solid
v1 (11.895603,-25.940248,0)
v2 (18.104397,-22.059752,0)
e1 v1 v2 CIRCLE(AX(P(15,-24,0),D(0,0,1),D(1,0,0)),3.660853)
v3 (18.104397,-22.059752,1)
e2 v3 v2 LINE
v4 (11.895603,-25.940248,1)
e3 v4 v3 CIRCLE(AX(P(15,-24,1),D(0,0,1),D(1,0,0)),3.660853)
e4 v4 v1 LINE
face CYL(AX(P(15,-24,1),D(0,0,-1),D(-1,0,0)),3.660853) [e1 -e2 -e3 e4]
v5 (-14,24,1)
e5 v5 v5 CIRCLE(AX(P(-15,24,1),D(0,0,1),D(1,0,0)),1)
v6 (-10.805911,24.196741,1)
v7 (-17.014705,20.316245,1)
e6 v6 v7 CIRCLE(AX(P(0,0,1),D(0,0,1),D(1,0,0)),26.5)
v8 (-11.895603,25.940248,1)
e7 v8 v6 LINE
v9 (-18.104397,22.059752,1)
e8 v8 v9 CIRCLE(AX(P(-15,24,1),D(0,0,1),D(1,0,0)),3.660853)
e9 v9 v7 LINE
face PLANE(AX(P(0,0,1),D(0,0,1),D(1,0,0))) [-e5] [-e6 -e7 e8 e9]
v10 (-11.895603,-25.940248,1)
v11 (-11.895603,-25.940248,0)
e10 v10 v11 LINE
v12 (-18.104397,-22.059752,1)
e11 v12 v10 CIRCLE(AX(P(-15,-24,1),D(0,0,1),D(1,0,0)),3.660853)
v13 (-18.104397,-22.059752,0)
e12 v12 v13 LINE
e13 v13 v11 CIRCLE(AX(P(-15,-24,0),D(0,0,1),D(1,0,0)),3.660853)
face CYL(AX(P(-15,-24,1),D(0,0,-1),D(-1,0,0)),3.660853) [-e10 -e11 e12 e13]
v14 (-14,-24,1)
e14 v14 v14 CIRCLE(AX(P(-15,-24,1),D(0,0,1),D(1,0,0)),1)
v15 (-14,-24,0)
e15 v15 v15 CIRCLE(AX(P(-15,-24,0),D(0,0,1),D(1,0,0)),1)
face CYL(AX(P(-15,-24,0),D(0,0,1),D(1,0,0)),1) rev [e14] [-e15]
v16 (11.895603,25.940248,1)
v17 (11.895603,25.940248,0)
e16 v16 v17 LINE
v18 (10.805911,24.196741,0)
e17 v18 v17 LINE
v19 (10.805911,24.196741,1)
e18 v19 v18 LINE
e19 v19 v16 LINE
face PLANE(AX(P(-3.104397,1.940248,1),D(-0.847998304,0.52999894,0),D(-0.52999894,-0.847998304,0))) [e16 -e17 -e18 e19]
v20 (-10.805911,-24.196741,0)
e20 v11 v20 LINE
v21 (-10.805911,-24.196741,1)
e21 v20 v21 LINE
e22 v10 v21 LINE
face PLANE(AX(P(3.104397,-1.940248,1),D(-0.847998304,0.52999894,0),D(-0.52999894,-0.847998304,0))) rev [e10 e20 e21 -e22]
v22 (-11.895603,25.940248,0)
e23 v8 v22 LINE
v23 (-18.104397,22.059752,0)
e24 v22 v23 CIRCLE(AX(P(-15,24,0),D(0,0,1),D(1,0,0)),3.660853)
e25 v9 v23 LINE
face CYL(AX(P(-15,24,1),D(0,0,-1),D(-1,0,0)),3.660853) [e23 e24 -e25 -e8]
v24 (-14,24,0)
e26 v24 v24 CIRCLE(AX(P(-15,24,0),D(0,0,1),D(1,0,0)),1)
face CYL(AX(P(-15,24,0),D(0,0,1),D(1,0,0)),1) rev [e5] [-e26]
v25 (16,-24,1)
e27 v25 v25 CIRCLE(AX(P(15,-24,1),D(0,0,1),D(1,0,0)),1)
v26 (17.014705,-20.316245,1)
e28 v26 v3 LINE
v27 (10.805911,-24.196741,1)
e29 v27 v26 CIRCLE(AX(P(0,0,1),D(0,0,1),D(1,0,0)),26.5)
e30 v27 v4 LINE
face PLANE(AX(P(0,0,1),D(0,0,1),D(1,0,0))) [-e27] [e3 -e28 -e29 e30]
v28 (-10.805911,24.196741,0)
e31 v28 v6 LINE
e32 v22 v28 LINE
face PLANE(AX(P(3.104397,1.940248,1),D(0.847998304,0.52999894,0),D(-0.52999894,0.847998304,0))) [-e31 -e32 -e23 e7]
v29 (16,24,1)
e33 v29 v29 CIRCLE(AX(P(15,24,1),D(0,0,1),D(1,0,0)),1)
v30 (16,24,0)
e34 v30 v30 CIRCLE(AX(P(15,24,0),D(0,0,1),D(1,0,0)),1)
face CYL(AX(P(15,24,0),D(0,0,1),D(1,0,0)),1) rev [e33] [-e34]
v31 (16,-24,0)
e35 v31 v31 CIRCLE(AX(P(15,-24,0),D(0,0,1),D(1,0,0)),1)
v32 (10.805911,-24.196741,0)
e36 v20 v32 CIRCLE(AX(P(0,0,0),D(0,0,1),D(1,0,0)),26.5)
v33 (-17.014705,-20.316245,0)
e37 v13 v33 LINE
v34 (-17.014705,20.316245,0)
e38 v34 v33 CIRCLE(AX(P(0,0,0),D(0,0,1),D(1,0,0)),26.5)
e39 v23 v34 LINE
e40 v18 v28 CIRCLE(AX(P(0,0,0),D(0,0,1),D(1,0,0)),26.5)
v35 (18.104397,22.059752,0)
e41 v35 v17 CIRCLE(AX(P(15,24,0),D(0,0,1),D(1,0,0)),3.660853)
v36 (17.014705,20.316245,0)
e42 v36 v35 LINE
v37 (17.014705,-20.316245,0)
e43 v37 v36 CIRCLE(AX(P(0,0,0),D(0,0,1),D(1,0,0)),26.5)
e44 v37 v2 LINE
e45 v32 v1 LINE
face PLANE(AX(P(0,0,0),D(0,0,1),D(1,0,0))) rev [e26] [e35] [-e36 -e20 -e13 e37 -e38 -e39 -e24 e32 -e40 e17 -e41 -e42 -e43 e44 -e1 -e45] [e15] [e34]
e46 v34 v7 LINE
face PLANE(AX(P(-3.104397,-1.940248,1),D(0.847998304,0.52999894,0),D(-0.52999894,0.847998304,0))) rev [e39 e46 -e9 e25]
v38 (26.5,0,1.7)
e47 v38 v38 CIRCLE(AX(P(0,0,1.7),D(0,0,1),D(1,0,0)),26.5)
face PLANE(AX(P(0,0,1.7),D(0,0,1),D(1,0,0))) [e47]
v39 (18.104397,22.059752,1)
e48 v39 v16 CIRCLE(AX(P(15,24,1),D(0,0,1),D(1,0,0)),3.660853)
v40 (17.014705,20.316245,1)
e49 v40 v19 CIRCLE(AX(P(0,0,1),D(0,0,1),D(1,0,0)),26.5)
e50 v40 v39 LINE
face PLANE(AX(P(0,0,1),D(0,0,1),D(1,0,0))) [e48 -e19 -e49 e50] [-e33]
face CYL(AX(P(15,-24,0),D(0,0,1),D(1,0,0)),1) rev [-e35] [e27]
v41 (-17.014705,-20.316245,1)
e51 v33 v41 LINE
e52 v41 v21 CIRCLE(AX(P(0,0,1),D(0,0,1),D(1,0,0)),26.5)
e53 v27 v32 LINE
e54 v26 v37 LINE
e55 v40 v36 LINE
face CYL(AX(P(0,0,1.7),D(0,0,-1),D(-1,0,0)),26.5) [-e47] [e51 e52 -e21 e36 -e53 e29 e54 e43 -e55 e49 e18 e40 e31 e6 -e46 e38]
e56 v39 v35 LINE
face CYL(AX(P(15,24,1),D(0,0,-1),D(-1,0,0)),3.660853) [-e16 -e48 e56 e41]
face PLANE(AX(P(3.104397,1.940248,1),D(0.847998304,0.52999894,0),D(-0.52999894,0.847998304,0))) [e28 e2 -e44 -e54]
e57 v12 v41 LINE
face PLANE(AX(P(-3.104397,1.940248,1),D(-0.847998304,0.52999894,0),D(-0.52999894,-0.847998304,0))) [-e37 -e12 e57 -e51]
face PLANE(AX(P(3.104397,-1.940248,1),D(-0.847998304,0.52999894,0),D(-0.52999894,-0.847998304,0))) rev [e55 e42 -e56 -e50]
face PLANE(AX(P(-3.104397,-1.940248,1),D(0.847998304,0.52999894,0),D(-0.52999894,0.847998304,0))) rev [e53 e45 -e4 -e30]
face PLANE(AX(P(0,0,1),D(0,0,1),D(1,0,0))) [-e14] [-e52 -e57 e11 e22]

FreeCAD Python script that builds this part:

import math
import FreeCAD as App
import Part
import Sketcher

V = App.Vector

doc = App.newDocument("Part")
body = doc.addObject("PartDesign::Body", "Body")

# Sketch on XY plane
sketch1 = body.newObject("Sketcher::SketchObject", "Sketch")
sketch1.AttachmentSupport = (doc.getObject("XY_Plane"), [""])
sketch1.MapMode = "FlatFace"
sketch1.addGeometry(Part.Circle(V(0, 0, 0), V(0, 0, 1), 26), False)
sketch1.addConstraint([
    Sketcher.Constraint("Coincident", 0, 3, -1, 1),
    Sketcher.Constraint("Diameter", 0, 53.0),
])
pad1 = body.newObject("PartDesign::Pad", "Pad")
pad1.Profile = sketch1
pad1.Length = 1.7

# Sketch on XY plane
sketch2 = body.newObject("Sketcher::SketchObject", "Sketch001")
sketch2.AttachmentSupport = (doc.getObject("XY_Plane"), [""])
sketch2.MapMode = "FlatFace"
sketch2.addGeometry([
    Part.LineSegment(V(0, 6.9, 0), V(-11.9, 25.9, 0)),  # 0
    Part.ArcOfCircle(Part.Circle(V(-15, 24, 0), V(0, 0, 1), 3.7), math.radians(32), math.radians(212)),  # 1
    Part.LineSegment(V(-18.1, 22.1, 0), V(-4.3, 0, 0)),  # 2
    Part.LineSegment(V(-4.3, 0, 0), V(0, 6.9, 0)),  # 3
    Part.LineSegment(V(11.9, 25.9, 0), V(0, 6.9, 0)),  # 4
    Part.LineSegment(V(0, 6.9, 0), V(4.3, 0, 0)),  # 5
    Part.LineSegment(V(4.3, 0, 0), V(18.1, 22.1, 0)),  # 6
    Part.ArcOfCircle(Part.Circle(V(15, 24, 0), V(0, 0, 1), 3.7), math.radians(-32), math.radians(148)),  # 7
    Part.LineSegment(V(0, -6.9, 0), V(-4.3, 0, 0)),  # 8
    Part.LineSegment(V(-4.3, 0, 0), V(-18.1, -22.1, 0)),  # 9
    Part.ArcOfCircle(Part.Circle(V(-15, -24, 0), V(0, 0, 1), 3.7), math.radians(148), math.radians(328)),  # 10
    Part.LineSegment(V(-11.9, -25.9, 0), V(0, -6.9, 0)),  # 11
    Part.LineSegment(V(18.1, -22.1, 0), V(4.3, 0, 0)),  # 12
    Part.LineSegment(V(4.3, 0, 0), V(0, -6.9, 0)),  # 13
    Part.LineSegment(V(0, -6.9, 0), V(11.9, -25.9, 0)),  # 14
    Part.ArcOfCircle(Part.Circle(V(15, -24, 0), V(0, 0, 1), 3.7), math.radians(-148), math.radians(32)),  # 15
], False)
sketch2.addConstraint([
    Sketcher.Constraint("Tangent", 0, 2, 1, 1),
    Sketcher.Constraint("Tangent", 1, 2, 2, 1),
    Sketcher.Constraint("Coincident", 2, 2, 3, 1),
    Sketcher.Constraint("Coincident", 3, 2, 0, 1),
    Sketcher.Constraint("Coincident", 4, 2, 5, 1),
    Sketcher.Constraint("Coincident", 5, 2, 6, 1),
    Sketcher.Constraint("Tangent", 6, 2, 7, 1),
    Sketcher.Constraint("Tangent", 7, 2, 4, 1),
    Sketcher.Constraint("Coincident", 8, 2, 9, 1),
    Sketcher.Constraint("Tangent", 9, 2, 10, 1),
    Sketcher.Constraint("Tangent", 10, 2, 11, 1),
    Sketcher.Constraint("Coincident", 11, 2, 8, 1),
    Sketcher.Constraint("Coincident", 12, 2, 13, 1),
    Sketcher.Constraint("Coincident", 13, 2, 14, 1),
    Sketcher.Constraint("Tangent", 14, 2, 15, 1),
    Sketcher.Constraint("Tangent", 15, 2, 12, 1),
    Sketcher.Constraint("Coincident", 4, 2, 3, 2),
    Sketcher.Constraint("Coincident", 8, 2, 2, 2),
    Sketcher.Constraint("Coincident", 12, 2, 5, 2),
    Sketcher.Constraint("Coincident", 13, 2, 11, 2),
    Sketcher.Constraint("Equal", 1, 7),
    Sketcher.Constraint("Equal", 7, 10),
    Sketcher.Constraint("Equal", 10, 15),
    Sketcher.Constraint("Symmetric", 7, 3, 10, 3, -1, 1),
    Sketcher.Constraint("Symmetric", 1, 3, 15, 3, -1, 1),
    Sketcher.Constraint("Symmetric", 2, 2, 5, 2, -1, 1),
    Sketcher.Constraint("Symmetric", 3, 2, 11, 2, -1, 1),
    Sketcher.Constraint("Symmetric", 1, 3, 7, 3, -2),
    Sketcher.Constraint("PointOnObject", 2, 2, -1),
    Sketcher.Constraint("PointOnObject", 3, 2, -2),
    Sketcher.Constraint("Parallel", 0, 2),
    Sketcher.Constraint("Parallel", 3, 4),
    Sketcher.Constraint("DistanceX", 1, 3, -1, 1, 15.0),
    Sketcher.Constraint("DistanceY", -1, 1, 1, 3, 24.0),
    Sketcher.Constraint("Radius", 1, 3.660853),
])
pad2 = body.newObject("PartDesign::Pad", "Pad001")
pad2.Profile = sketch2
pad2.Length = 1

# Sketch on XY plane
sketch3 = body.newObject("Sketcher::SketchObject", "Sketch002")
sketch3.AttachmentSupport = (doc.getObject("XY_Plane"), [""])
sketch3.MapMode = "FlatFace"
sketch3.AttachmentOffset = App.Placement(V(0, 0, 1), App.Rotation())
sketch3.addGeometry([
    Part.Circle(V(-15, 24, 0), V(0, 0, 1), 1),
    Part.Circle(V(15, 24, 0), V(0, 0, 1), 1),
    Part.Circle(V(15, -24, 0), V(0, 0, 1), 1),
    Part.Circle(V(-15, -24, 0), V(0, 0, 1), 1),
], False)
sketch3.addConstraint([
    Sketcher.Constraint("Equal", 0, 1),
    Sketcher.Constraint("Equal", 1, 2),
    Sketcher.Constraint("Equal", 2, 3),
    Sketcher.Constraint("Symmetric", 0, 3, 2, 3, -1, 1),
    Sketcher.Constraint("Symmetric", 1, 3, 3, 3, -1, 1),
    Sketcher.Constraint("Symmetric", 0, 3, 1, 3, -2),
    Sketcher.Constraint("Diameter", 0, 2.0),
    Sketcher.Constraint("DistanceX", 0, 3, -1, 1, 15.0),
    Sketcher.Constraint("DistanceY", -1, 1, 0, 3, 24.0),
])
pocket1 = body.newObject("PartDesign::Pocket", "Pocket")
pocket1.Profile = sketch3
pocket1.Length = 1

doc.recompute()
